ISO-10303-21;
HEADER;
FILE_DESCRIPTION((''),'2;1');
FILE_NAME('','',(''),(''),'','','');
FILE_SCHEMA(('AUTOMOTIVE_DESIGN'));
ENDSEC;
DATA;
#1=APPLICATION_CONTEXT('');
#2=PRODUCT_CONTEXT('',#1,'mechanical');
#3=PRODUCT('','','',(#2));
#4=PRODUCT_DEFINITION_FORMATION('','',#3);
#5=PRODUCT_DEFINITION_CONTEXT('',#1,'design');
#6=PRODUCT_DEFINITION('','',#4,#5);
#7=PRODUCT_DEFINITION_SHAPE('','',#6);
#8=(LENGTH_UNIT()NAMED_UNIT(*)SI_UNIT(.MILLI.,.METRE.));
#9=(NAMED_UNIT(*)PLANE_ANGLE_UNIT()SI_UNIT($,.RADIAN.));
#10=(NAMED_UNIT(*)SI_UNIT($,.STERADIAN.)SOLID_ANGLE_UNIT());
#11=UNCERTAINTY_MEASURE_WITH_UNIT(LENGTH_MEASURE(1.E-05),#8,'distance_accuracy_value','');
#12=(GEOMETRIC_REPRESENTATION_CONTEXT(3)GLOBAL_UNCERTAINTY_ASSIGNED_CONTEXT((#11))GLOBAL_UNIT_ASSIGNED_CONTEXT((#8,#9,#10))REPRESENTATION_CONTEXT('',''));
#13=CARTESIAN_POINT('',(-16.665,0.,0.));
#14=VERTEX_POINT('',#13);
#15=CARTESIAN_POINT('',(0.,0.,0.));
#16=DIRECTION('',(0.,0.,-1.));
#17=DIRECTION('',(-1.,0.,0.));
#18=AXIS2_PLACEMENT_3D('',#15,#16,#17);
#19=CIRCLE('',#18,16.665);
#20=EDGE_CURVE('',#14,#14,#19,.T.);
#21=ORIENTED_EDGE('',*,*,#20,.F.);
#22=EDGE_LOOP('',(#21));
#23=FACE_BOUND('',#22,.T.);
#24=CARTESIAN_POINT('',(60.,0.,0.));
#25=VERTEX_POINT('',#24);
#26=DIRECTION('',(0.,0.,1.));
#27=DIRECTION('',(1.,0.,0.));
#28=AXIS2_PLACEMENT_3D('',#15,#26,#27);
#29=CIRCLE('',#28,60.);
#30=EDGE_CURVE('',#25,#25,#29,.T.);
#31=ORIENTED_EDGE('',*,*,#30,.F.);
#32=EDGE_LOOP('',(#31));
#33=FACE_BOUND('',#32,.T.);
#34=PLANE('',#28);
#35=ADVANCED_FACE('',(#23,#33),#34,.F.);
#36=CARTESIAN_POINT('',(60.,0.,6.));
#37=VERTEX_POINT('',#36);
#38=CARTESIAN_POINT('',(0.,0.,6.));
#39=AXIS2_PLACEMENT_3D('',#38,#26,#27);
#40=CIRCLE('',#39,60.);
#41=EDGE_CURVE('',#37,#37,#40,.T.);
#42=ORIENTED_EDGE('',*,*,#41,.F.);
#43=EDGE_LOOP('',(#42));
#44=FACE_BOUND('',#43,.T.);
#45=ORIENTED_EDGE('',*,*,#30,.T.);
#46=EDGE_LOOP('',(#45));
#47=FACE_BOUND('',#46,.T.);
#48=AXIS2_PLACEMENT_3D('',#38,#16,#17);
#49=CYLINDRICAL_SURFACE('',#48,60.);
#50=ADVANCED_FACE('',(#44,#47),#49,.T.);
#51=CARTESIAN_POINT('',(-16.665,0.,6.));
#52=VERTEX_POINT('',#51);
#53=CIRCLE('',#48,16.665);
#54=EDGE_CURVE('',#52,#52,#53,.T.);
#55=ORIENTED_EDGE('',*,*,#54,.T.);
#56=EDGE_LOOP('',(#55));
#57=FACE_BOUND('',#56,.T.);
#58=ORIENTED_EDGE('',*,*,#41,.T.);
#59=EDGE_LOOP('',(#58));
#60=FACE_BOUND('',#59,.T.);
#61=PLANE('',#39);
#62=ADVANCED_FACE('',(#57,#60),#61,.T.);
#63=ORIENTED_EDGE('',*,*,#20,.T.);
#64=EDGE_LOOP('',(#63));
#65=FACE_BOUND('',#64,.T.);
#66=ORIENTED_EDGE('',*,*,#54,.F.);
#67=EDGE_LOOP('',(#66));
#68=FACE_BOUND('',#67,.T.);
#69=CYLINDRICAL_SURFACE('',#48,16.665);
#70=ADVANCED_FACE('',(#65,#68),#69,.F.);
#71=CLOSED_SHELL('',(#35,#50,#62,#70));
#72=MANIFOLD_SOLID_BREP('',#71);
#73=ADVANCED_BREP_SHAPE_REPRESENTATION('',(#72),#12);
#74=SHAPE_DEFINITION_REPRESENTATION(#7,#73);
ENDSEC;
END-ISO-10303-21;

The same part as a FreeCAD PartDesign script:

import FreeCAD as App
import Part
import Sketcher
Q = App.Units.Quantity

doc = App.newDocument("Part")
body = doc.addObject("PartDesign::Body", "Body")

sketch1 = body.newObject("Sketcher::SketchObject", "Sketch")
sketch1.AttachmentSupport = (doc.getObject("XY_Plane"), [""])
sketch1.MapMode = "FlatFace"
sketch1.addGeometry(Part.Circle(App.Vector(0, 0, 0), App.Vector(0, 0, 1), 60), False)
sketch1.addConstraint(Sketcher.Constraint("Coincident", 0, 3, -1, 1))
sketch1.addConstraint(Sketcher.Constraint("Diameter", 0, Q("120 mm")))
pad1 = body.newObject("PartDesign::Pad", "Pad")
pad1.Profile = sketch1
pad1.Length = 6

sketch2 = body.newObject("Sketcher::SketchObject", "Sketch001")
sketch2.AttachmentSupport = (doc.getObject("XY_Plane"), [""])
sketch2.MapMode = "FlatFace"
sketch2.addGeometry(Part.Circle(App.Vector(0, 0, 0), App.Vector(0, 0, 1), 17), False)
sketch2.addConstraint(Sketcher.Constraint("Coincident", 0, 3, -1, 1))
sketch2.addConstraint(Sketcher.Constraint("Diameter", 0, Q("33.33 mm")))
pocket1 = body.newObject("PartDesign::Pocket", "Pocket")
pocket1.Profile = sketch2
pocket1.Type = "ThroughAll"
pocket1.Reversed = True

doc.recompute()
